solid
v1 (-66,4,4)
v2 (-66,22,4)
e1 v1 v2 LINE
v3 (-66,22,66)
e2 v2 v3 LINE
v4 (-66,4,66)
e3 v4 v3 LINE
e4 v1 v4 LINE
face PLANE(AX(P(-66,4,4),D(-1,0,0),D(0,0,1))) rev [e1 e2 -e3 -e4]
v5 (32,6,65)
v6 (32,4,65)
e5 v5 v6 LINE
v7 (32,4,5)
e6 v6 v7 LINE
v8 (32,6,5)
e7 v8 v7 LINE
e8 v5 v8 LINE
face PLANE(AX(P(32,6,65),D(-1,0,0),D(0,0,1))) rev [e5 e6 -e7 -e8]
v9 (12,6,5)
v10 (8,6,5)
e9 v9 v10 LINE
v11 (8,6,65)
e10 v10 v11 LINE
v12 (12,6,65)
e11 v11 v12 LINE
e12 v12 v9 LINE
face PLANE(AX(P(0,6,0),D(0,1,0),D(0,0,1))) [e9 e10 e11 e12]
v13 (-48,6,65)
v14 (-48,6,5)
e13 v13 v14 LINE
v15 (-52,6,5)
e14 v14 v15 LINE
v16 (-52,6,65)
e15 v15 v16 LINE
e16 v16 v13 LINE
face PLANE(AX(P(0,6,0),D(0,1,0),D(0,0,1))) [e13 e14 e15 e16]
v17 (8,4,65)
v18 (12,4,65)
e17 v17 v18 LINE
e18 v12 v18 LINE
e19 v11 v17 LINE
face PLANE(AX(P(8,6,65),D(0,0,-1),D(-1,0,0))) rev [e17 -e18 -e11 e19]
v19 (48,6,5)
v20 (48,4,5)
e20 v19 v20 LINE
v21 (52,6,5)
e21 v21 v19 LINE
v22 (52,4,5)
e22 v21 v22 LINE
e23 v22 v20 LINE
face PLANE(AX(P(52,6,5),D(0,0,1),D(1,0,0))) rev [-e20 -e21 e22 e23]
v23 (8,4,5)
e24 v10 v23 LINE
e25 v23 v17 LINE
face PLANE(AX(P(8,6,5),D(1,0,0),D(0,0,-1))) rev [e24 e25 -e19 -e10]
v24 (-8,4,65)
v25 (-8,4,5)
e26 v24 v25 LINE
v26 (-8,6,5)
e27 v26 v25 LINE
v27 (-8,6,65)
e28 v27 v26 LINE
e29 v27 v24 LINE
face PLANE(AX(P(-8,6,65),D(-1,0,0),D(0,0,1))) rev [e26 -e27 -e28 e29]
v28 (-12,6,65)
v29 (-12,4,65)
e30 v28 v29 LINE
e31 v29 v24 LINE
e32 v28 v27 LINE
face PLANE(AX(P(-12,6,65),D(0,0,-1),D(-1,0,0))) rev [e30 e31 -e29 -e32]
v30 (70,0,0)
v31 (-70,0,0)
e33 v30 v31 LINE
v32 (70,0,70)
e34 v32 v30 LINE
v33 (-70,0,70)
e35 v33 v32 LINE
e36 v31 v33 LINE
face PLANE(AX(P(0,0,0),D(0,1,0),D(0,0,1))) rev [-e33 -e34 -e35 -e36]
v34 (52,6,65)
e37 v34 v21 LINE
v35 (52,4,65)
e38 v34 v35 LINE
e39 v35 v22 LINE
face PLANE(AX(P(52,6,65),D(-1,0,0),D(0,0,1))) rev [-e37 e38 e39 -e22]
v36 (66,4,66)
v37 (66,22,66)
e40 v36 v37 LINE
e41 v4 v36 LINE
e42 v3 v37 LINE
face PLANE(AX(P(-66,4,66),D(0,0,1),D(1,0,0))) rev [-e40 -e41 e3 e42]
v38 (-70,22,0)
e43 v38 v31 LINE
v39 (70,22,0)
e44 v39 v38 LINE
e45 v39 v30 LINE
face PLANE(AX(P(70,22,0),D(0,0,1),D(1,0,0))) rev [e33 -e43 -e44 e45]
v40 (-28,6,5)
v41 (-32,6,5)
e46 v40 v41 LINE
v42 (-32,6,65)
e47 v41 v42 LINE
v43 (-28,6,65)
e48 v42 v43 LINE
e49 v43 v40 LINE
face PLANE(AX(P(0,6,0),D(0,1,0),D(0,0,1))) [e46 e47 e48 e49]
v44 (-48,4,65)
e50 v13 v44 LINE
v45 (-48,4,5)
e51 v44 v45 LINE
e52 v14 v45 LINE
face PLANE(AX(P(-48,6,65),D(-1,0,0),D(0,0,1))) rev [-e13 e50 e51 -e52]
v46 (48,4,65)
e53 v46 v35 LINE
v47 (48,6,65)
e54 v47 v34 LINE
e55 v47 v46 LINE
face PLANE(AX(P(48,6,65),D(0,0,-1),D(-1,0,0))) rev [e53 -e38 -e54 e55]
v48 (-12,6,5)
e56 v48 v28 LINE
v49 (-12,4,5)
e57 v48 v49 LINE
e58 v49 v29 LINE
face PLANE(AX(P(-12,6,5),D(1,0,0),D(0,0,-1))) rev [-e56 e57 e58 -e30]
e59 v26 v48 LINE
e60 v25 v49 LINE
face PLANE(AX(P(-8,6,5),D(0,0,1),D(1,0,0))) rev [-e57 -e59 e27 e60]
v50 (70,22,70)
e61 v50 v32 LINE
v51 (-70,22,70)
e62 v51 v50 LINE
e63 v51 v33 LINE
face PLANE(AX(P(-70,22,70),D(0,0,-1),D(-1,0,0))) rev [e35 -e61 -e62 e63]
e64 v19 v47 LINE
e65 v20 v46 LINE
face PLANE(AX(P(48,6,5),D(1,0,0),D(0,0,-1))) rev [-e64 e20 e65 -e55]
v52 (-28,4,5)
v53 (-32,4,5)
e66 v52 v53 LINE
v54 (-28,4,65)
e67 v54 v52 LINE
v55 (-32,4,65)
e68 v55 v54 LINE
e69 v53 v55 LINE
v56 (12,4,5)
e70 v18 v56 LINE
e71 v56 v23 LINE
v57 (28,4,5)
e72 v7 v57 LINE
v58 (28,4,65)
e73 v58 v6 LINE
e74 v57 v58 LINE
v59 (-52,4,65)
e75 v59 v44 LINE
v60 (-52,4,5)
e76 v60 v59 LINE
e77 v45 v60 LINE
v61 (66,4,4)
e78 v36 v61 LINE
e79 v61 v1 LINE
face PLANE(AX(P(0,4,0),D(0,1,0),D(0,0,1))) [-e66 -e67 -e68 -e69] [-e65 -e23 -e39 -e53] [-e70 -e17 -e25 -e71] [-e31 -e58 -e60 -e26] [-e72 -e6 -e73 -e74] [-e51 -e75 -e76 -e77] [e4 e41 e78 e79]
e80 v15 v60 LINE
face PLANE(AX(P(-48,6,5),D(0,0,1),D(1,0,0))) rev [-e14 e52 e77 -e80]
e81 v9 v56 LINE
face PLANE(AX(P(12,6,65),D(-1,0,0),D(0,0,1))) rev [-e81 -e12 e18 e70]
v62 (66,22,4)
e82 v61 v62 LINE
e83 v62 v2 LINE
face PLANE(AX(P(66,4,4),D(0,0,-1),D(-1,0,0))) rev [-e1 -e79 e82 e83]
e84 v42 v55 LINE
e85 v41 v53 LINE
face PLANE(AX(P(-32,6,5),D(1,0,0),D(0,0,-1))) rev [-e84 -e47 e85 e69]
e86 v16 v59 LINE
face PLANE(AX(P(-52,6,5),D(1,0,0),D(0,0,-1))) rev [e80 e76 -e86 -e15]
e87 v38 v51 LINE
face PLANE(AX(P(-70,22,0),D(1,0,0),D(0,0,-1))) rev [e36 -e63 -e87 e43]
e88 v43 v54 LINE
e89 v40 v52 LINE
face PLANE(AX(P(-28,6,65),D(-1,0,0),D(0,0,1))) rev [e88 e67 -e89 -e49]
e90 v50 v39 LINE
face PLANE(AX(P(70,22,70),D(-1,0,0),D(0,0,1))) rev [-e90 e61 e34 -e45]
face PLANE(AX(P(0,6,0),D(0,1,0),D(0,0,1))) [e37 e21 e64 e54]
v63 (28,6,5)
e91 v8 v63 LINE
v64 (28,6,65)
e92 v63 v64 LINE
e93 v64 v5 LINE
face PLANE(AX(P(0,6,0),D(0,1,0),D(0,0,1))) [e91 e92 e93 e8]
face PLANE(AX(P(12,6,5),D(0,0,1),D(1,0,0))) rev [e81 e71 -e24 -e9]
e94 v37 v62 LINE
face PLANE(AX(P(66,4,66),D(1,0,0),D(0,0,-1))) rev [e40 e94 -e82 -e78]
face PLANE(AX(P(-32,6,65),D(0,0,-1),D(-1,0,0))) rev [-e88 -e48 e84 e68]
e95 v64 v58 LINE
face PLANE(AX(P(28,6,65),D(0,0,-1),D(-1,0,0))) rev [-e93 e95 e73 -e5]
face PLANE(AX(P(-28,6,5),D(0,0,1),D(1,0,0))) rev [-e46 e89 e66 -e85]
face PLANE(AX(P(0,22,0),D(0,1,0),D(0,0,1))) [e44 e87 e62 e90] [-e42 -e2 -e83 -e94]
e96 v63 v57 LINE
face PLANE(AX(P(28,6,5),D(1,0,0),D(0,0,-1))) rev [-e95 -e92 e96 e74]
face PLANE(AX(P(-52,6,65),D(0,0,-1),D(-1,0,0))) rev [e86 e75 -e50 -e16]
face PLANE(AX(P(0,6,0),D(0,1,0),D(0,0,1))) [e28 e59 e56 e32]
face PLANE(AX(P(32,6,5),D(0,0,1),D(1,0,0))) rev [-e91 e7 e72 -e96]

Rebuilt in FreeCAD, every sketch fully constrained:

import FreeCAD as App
import Part
import Sketcher
from FreeCAD import Vector
Q = App.Units.Quantity

doc = App.newDocument("Part")
params = doc.addObject("Spreadsheet::Sheet", "Params")
for row, (alias, value) in enumerate([
    ("sketch1_width", "140 mm"),
    ("sketch1_height", "70 mm"),
    ("pad1_length", "22 mm"),
    ("sketch2_width", "132 mm"),
    ("sketch2_height", "62 mm"),
    ("pocket1_length", "18 mm"),
    ("sketch3_width", "4 mm"),
    ("sketch3_height", "60 mm"),
    ("pad2_length", "2 mm"),
], start=1):
    params.set(f"A{row}", alias)
    params.set(f"B{row}", "=" + value)
    params.setAlias(f"B{row}", alias)

body = doc.addObject("PartDesign::Body", "Body")

# Sketch on XZ plane
sketch1 = doc.addObject("Sketcher::SketchObject", "Sketch")
body.addObject(sketch1)
sketch1.AttachmentSupport = (doc.XZ_Plane, [""])
sketch1.MapMode = "FlatFace"
sketch1.addGeometry([
    Part.LineSegment(Vector(-70, 0, 0), Vector(-70, 70, 0)),
    Part.LineSegment(Vector(-70, 70, 0), Vector(70, 70, 0)),
    Part.LineSegment(Vector(70, 70, 0), Vector(70, 0, 0)),
    Part.LineSegment(Vector(70, 0, 0), Vector(-70, 0, 0)),
], False)
sketch1.addConstraint([
    Sketcher.Constraint("Coincident", 0, 2, 1, 1),
    Sketcher.Constraint("Coincident", 1, 2, 2, 1),
    Sketcher.Constraint("Coincident", 2, 2, 3, 1),
    Sketcher.Constraint("Coincident", 3, 2, 0, 1),
    Sketcher.Constraint("Vertical", 0),
    Sketcher.Constraint("Horizontal", 1),
    Sketcher.Constraint("Vertical", 2),
    Sketcher.Constraint("Horizontal", 3),
    Sketcher.Constraint("Symmetric", 2, 2, 3, 2, -1, 1),
    Sketcher.Constraint("DistanceX", 1, 1, 1, 2, Q("140 mm")),
    Sketcher.Constraint("DistanceY", 0, 1, 0, 2, Q("70 mm")),
])
sketch1.setExpression("Constraints[9]", "Params.sketch1_width")
sketch1.setExpression("Constraints[10]", "Params.sketch1_height")
pad1 = doc.addObject("PartDesign::Pad", "Pad")
body.addObject(pad1)
pad1.Profile = sketch1
pad1.setExpression("Length", "Params.pad1_length")
pad1.Reversed = True

# Sketch on XZ plane
sketch2 = doc.addObject("Sketcher::SketchObject", "Sketch001")
body.addObject(sketch2)
sketch2.AttachmentSupport = (doc.XZ_Plane, [""])
sketch2.MapMode = "FlatFace"
sketch2.AttachmentOffset = App.Placement(Vector(0, 0, -22), App.Rotation())
sketch2.addGeometry([
    Part.LineSegment(Vector(-66, 4, 0), Vector(-66, 66, 0)),
    Part.LineSegment(Vector(-66, 66, 0), Vector(66, 66, 0)),
    Part.LineSegment(Vector(66, 66, 0), Vector(66, 4, 0)),
    Part.LineSegment(Vector(66, 4, 0), Vector(-66, 4, 0)),
], False)
sketch2.addConstraint([
    Sketcher.Constraint("Coincident", 0, 2, 1, 1),
    Sketcher.Constraint("Coincident", 1, 2, 2, 1),
    Sketcher.Constraint("Coincident", 2, 2, 3, 1),
    Sketcher.Constraint("Coincident", 3, 2, 0, 1),
    Sketcher.Constraint("Vertical", 0),
    Sketcher.Constraint("Horizontal", 1),
    Sketcher.Constraint("Vertical", 2),
    Sketcher.Constraint("Horizontal", 3),
    Sketcher.Constraint("DistanceX", 1, 1, 1, 2, Q("132 mm")),
    Sketcher.Constraint("DistanceY", 0, 1, 0, 2, Q("62 mm")),
    Sketcher.Constraint("DistanceX", 0, 2, -1, 1, Q("66 mm")),
    Sketcher.Constraint("DistanceY", -1, 1, 0, 2, Q("66 mm")),
])
sketch2.setExpression("Constraints[8]", "Params.sketch2_width")
sketch2.setExpression("Constraints[9]", "Params.sketch2_height")
pocket1 = doc.addObject("PartDesign::Pocket", "Pocket")
body.addObject(pocket1)
pocket1.Profile = sketch2
pocket1.setExpression("Length", "Params.pocket1_length")
pocket1.Reversed = True

# Sketch on XZ plane
sketch3 = doc.addObject("Sketcher::SketchObject", "Sketch002")
body.addObject(sketch3)
sketch3.AttachmentSupport = (doc.XZ_Plane, [""])
sketch3.MapMode = "FlatFace"
sketch3.AttachmentOffset = App.Placement(Vector(0, 0, -4), App.Rotation())
sketch3.addGeometry([
    Part.LineSegment(Vector(-52, 5, 0), Vector(-52, 65, 0)),  # 0
    Part.LineSegment(Vector(-52, 65, 0), Vector(-48, 65, 0)),  # 1
    Part.LineSegment(Vector(-48, 65, 0), Vector(-48, 5, 0)),  # 2
    Part.LineSegment(Vector(-48, 5, 0), Vector(-52, 5, 0)),  # 3
    Part.LineSegment(Vector(-32, 5, 0), Vector(-32, 65, 0)),  # 4
    Part.LineSegment(Vector(-32, 65, 0), Vector(-28, 65, 0)),  # 5
    Part.LineSegment(Vector(-28, 65, 0), Vector(-28, 5, 0)),  # 6
    Part.LineSegment(Vector(-28, 5, 0), Vector(-32, 5, 0)),  # 7
    Part.LineSegment(Vector(-12, 5, 0), Vector(-12, 65, 0)),  # 8
    Part.LineSegment(Vector(-12, 65, 0), Vector(-8, 65, 0)),  # 9
    Part.LineSegment(Vector(-8, 65, 0), Vector(-8, 5, 0)),  # 10
    Part.LineSegment(Vector(-8, 5, 0), Vector(-12, 5, 0)),  # 11
    Part.LineSegment(Vector(8, 5, 0), Vector(8, 65, 0)),  # 12
    Part.LineSegment(Vector(8, 65, 0), Vector(12, 65, 0)),  # 13
    Part.LineSegment(Vector(12, 65, 0), Vector(12, 5, 0)),  # 14
    Part.LineSegment(Vector(12, 5, 0), Vector(8, 5, 0)),  # 15
    Part.LineSegment(Vector(28, 5, 0), Vector(28, 65, 0)),  # 16
    Part.LineSegment(Vector(28, 65, 0), Vector(32, 65, 0)),  # 17
    Part.LineSegment(Vector(32, 65, 0), Vector(32, 5, 0)),  # 18
    Part.LineSegment(Vector(32, 5, 0), Vector(28, 5, 0)),  # 19
    Part.LineSegment(Vector(48, 5, 0), Vector(48, 65, 0)),  # 20
    Part.LineSegment(Vector(48, 65, 0), Vector(52, 65, 0)),  # 21
    Part.LineSegment(Vector(52, 65, 0), Vector(52, 5, 0)),  # 22
    Part.LineSegment(Vector(52, 5, 0), Vector(48, 5, 0)),  # 23
], False)
sketch3.addConstraint([
    Sketcher.Constraint("Coincident", 0, 2, 1, 1),
    Sketcher.Constraint("Coincident", 1, 2, 2, 1),
    Sketcher.Constraint("Coincident", 2, 2, 3, 1),
    Sketcher.Constraint("Coincident", 3, 2, 0, 1),
    Sketcher.Constraint("Coincident", 4, 2, 5, 1),
    Sketcher.Constraint("Coincident", 5, 2, 6, 1),
    Sketcher.Constraint("Coincident", 6, 2, 7, 1),
    Sketcher.Constraint("Coincident", 7, 2, 4, 1),
    Sketcher.Constraint("Coincident", 8, 2, 9, 1),
    Sketcher.Constraint("Coincident", 9, 2, 10, 1),
    Sketcher.Constraint("Coincident", 10, 2, 11, 1),
    Sketcher.Constraint("Coincident", 11, 2, 8, 1),
    Sketcher.Constraint("Coincident", 12, 2, 13, 1),
    Sketcher.Constraint("Coincident", 13, 2, 14, 1),
    Sketcher.Constraint("Coincident", 14, 2, 15, 1),
    Sketcher.Constraint("Coincident", 15, 2, 12, 1),
    Sketcher.Constraint("Coincident", 16, 2, 17, 1),
    Sketcher.Constraint("Coincident", 17, 2, 18, 1),
    Sketcher.Constraint("Coincident", 18, 2, 19, 1),
    Sketcher.Constraint("Coincident", 19, 2, 16, 1),
    Sketcher.Constraint("Coincident", 20, 2, 21, 1),
    Sketcher.Constraint("Coincident", 21, 2, 22, 1),
    Sketcher.Constraint("Coincident", 22, 2, 23, 1),
    Sketcher.Constraint("Coincident", 23, 2, 20, 1),
    Sketcher.Constraint("Vertical", 0),
    Sketcher.Constraint("Horizontal", 1),
    Sketcher.Constraint("Vertical", 2),
    Sketcher.Constraint("Horizontal", 3),
    Sketcher.Constraint("Vertical", 4),
    Sketcher.Constraint("Horizontal", 5),
    Sketcher.Constraint("Vertical", 6),
    Sketcher.Constraint("Horizontal", 7),
    Sketcher.Constraint("Vertical", 8),
    Sketcher.Constraint("Horizontal", 9),
    Sketcher.Constraint("Vertical", 10),
    Sketcher.Constraint("Horizontal", 11),
    Sketcher.Constraint("Vertical", 12),
    Sketcher.Constraint("Horizontal", 13),
    Sketcher.Constraint("Vertical", 14),
    Sketcher.Constraint("Horizontal", 15),
    Sketcher.Constraint("Vertical", 16),
    Sketcher.Constraint("Horizontal", 17),
    Sketcher.Constraint("Vertical", 18),
    Sketcher.Constraint("Horizontal", 19),
    Sketcher.Constraint("Vertical", 20),
    Sketcher.Constraint("Horizontal", 21),
    Sketcher.Constraint("Vertical", 22),
    Sketcher.Constraint("Horizontal", 23),
    Sketcher.Constraint("Symmetric", 9, 2, 12, 2, -2),
    Sketcher.Constraint("Symmetric", 11, 2, 14, 2, -2),
    Sketcher.Constraint("Symmetric", 5, 2, 16, 2, -2),
    Sketcher.Constraint("Symmetric", 7, 2, 18, 2, -2),
    Sketcher.Constraint("Symmetric", 1, 2, 20, 2, -2),
    Sketcher.Constraint("Symmetric", 3, 2, 22, 2, -2),
    Sketcher.Constraint("Horizontal", 1, 2, 4, 2),
    Sketcher.Constraint("Horizontal", 3, 2, 6, 2),
    Sketcher.Constraint("Horizontal", 5, 2, 8, 2),
    Sketcher.Constraint("Horizontal", 7, 2, 10, 2),
    Sketcher.Constraint("Equal", 3, 5),
    Sketcher.Constraint("Equal", 7, 9),
    Sketcher.Constraint("DistanceX", 1, 1, 1, 2, Q("4 mm")),
    Sketcher.Constraint("DistanceY", 0, 1, 0, 2, Q("60 mm")),
    Sketcher.Constraint("DistanceX", 0, 2, -1, 1, Q("52 mm")),
    Sketcher.Constraint("DistanceY", -1, 1, 0, 2, Q("65 mm")),
    Sketcher.Constraint("DistanceX", 4, 2, -1, 1, Q("32 mm")),
    Sketcher.Constraint("DistanceX", 8, 2, -1, 1, Q("12 mm")),
])
sketch3.setExpression("Constraints[60]", "Params.sketch3_width")
sketch3.setExpression("Constraints[61]", "Params.sketch3_height")
pad2 = doc.addObject("PartDesign::Pad", "Pad001")
body.addObject(pad2)
pad2.Profile = sketch3
pad2.setExpression("Length", "Params.pad2_length")
pad2.Reversed = True

doc.recompute()
